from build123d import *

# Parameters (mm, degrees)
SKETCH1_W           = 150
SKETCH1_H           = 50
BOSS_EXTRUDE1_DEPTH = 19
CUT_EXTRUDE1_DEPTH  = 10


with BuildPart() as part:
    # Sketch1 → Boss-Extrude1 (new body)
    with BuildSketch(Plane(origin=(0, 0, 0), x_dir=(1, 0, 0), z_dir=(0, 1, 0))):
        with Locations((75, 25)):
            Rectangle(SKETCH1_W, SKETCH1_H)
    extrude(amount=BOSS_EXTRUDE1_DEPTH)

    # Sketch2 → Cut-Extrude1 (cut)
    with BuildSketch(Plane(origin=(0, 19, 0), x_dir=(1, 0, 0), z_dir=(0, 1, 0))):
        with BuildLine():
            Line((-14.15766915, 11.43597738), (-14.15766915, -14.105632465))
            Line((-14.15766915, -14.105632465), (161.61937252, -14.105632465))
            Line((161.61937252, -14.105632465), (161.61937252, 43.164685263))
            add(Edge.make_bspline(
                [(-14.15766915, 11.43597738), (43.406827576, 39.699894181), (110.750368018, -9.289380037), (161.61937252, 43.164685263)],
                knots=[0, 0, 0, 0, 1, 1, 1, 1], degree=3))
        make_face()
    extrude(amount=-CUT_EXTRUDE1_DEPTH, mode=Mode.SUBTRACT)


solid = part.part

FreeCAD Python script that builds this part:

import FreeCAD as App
import Part
import Sketcher
from FreeCAD import Vector


def add_polygon(sketch, points):
    """Adds a closed chain of lines whose ends are joined by coincident constraints."""
    first, n = sketch.GeometryCount, len(points)
    for a, b in zip(points, points[1:] + points[:1]):
        sketch.addGeometry(Part.LineSegment(App.Vector(*a, 0), App.Vector(*b, 0)), False)
    for i in range(n):
        sketch.addConstraint(Sketcher.Constraint("Coincident", first + i, 2, first + (i + 1) % n, 1))

doc = App.newDocument("Part")
body = doc.addObject("PartDesign::Body", "Body")

sketch1 = doc.addObject("Sketcher::SketchObject", "Sketch")
body.addObject(sketch1)
sketch1.AttachmentSupport = (doc.XZ_Plane, [""])
sketch1.MapMode = "FlatFace"
add_polygon(sketch1, [(0, -50), (0, 0), (150, 0), (150, -50)])
sketch1.addConstraint(Sketcher.Constraint("Vertical", 0))
sketch1.addConstraint(Sketcher.Constraint("Horizontal", 1))
sketch1.addConstraint(Sketcher.Constraint("Vertical", 2))
sketch1.addConstraint(Sketcher.Constraint("Horizontal", 3))
sketch1.addConstraint(Sketcher.Constraint("Coincident", 0, 2, -1, 1))
sketch1.addConstraint(Sketcher.Constraint("DistanceX", 1, 1, 1, 2, 150.0))
sketch1.addConstraint(Sketcher.Constraint("DistanceY", 0, 1, 0, 2, 50.0))
pad1 = doc.addObject("PartDesign::Pad", "Pad")
body.addObject(pad1)
pad1.Profile = sketch1
pad1.Length = 19
pad1.Reversed = True

sketch2 = doc.addObject("Sketcher::SketchObject", "Sketch001")
body.addObject(sketch2)
sketch2.AttachmentSupport = (doc.XZ_Plane, [""])
sketch2.MapMode = "FlatFace"
sketch2.AttachmentOffset = App.Placement(Vector(0, 0, -19), App.Rotation())
sketch2.addGeometry(Part.LineSegment(Vector(-14.157669, -11.435977, 0), Vector(-14.157669, 14.105632, 0)), False)
sketch2.addGeometry(Part.LineSegment(Vector(-14.157669, 14.105632, 0), Vector(161.619373, 14.105632, 0)), False)
sketch2.addGeometry(Part.LineSegment(Vector(161.619373, 14.105632, 0), Vector(161.619373, -43.164685, 0)), False)
sketch2.addGeometry(Part.BSplineCurve([Vector(-14.157669, -11.435977, 0), Vector(43.406828, -39.699894, 0), Vector(110.750368, 9.28938, 0), Vector(161.619373, -43.164685, 0)], [4, 4], [0, 1], False, 3, [1, 1, 1, 1], False), False)
sketch2.addConstraint(Sketcher.Constraint("Block", 3))
sketch2.addConstraint(Sketcher.Constraint("Coincident", 0, 2, 1, 1))
sketch2.addConstraint(Sketcher.Constraint("Coincident", 1, 2, 2, 1))
sketch2.addConstraint(Sketcher.Constraint("Coincident", 2, 2, 3, 2))
sketch2.addConstraint(Sketcher.Constraint("Coincident", 3, 1, 0, 1))
sketch2.addConstraint(Sketcher.Constraint("Vertical", 0))
sketch2.addConstraint(Sketcher.Constraint("Horizontal", 1))
sketch2.addConstraint(Sketcher.Constraint("Vertical", 2))
sketch2.addConstraint(Sketcher.Constraint("DistanceY", 0, 1, 0, 2, 25.54161))
pocket1 = doc.addObject("PartDesign::Pocket", "Pocket")
body.addObject(pocket1)
pocket1.Profile = sketch2
pocket1.Length = 10
pocket1.Reversed = True

doc.recompute()
